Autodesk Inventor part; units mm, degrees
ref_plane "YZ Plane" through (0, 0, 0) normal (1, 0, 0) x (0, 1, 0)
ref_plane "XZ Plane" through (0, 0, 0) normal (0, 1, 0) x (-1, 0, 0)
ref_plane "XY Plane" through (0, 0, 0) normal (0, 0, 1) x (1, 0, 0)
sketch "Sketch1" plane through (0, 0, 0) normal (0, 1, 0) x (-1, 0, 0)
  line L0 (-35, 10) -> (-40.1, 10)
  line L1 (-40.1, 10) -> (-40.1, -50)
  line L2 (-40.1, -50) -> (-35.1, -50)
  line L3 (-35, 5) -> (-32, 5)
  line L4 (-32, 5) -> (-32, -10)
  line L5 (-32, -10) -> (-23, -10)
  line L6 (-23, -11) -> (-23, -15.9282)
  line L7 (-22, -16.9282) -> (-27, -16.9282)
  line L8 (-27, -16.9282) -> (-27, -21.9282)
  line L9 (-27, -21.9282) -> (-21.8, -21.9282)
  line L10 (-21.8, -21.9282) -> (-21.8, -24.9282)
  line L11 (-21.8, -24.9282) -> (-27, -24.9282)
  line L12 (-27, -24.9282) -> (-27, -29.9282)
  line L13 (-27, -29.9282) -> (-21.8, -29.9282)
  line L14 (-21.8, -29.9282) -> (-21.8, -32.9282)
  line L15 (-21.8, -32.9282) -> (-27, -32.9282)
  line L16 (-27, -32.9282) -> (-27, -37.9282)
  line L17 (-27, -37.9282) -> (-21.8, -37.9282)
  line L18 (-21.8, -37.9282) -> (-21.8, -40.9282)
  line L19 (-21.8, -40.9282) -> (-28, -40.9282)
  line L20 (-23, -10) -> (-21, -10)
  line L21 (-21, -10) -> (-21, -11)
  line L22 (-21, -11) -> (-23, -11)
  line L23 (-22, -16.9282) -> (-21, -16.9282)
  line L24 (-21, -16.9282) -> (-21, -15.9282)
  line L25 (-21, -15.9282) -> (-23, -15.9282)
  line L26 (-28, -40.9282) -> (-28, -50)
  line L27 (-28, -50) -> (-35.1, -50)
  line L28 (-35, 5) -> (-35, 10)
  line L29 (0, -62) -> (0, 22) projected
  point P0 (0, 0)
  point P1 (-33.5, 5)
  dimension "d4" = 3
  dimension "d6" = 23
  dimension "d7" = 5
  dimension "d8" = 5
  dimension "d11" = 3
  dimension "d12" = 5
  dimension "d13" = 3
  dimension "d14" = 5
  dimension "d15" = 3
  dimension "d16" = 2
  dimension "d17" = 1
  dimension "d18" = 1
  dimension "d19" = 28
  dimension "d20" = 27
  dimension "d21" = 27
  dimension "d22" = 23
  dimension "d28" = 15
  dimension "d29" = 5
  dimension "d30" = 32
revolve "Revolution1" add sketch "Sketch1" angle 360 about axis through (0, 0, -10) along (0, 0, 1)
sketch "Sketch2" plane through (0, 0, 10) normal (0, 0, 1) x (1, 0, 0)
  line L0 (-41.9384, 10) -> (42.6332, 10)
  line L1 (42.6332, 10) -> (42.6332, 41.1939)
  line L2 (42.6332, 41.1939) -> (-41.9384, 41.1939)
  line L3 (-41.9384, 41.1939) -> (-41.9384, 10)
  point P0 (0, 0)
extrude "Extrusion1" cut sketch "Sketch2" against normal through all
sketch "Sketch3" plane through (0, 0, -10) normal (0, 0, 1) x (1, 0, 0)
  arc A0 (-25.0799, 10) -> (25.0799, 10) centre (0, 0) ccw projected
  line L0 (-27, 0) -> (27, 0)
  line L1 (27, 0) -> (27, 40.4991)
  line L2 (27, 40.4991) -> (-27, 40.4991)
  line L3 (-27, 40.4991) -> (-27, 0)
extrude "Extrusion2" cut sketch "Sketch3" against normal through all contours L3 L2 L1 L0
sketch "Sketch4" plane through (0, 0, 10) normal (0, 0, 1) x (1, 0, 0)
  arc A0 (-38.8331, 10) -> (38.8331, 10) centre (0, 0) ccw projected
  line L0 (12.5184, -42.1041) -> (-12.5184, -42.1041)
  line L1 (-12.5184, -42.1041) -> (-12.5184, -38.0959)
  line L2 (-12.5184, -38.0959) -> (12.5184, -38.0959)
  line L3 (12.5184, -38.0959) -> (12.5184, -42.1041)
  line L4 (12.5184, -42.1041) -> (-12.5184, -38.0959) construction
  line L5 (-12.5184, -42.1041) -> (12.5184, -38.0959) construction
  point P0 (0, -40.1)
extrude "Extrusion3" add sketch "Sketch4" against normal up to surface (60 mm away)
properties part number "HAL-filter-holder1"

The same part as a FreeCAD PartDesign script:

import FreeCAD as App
import Part
import Sketcher
Q = App.Units.Quantity


def add_polygon(sketch, points):
    """Adds a closed chain of lines whose ends are joined by coincident constraints."""
    first, n = sketch.GeometryCount, len(points)
    for a, b in zip(points, points[1:] + points[:1]):
        sketch.addGeometry(Part.LineSegment(App.Vector(*a, 0), App.Vector(*b, 0)), False)
    for i in range(n):
        sketch.addConstraint(Sketcher.Constraint("Coincident", first + i, 2, first + (i + 1) % n, 1))

doc = App.newDocument("Part")
params = doc.addObject("Spreadsheet::Sheet", "Params")
for row, (alias, value) in enumerate([
    ("sketch1_width", "2 mm"),
    ("sketch1_width2", "3 mm"),
    ("sketch1_height", "5 mm"),
    ("sketch1_height2", "1 mm"),
    ("sketch1_height3", "15 mm"),
    ("revolution_angle", "360 deg"),
    ("sketch3_width", "54 mm"),
    ("pad1_length", "60 mm"),
], start=1):
    params.set(f"A{row}", alias)
    params.set(f"B{row}", "=" + value)
    params.setAlias(f"B{row}", alias)

body = doc.addObject("PartDesign::Body", "Body")

sketch1 = doc.addObject("Sketcher::SketchObject", "Sketch")
body.addObject(sketch1)
sketch1.AttachmentSupport = (doc.XZ_Plane, [""])
sketch1.MapMode = "FlatFace"
add_polygon(sketch1, [(35, 5), (35, 10), (40.1, 10), (40.1, -50), (28, -50), (28, -40.9), (21.8, -40.9), (21.8, -37.9), (27, -37.9), (27, -32.9), (21.8, -32.9), (21.8, -29.9), (27, -29.9), (27, -24.9), (21.8, -24.9), (21.8, -21.9), (27, -21.9), (27, -16.9), (21, -16.9), (21, -15.9), (23, -15.9), (23, -11), (21, -11), (21, -10), (32, -10), (32, 5)])
sketch1.addConstraint(Sketcher.Constraint("Vertical", 0))
sketch1.addConstraint(Sketcher.Constraint("Horizontal", 1))
sketch1.addConstraint(Sketcher.Constraint("Vertical", 2))
sketch1.addConstraint(Sketcher.Constraint("Horizontal", 3))
sketch1.addConstraint(Sketcher.Constraint("Vertical", 4))
sketch1.addConstraint(Sketcher.Constraint("Horizontal", 5))
sketch1.addConstraint(Sketcher.Constraint("Vertical", 6))
sketch1.addConstraint(Sketcher.Constraint("Horizontal", 7))
sketch1.addConstraint(Sketcher.Constraint("Vertical", 8))
sketch1.addConstraint(Sketcher.Constraint("Horizontal", 9))
sketch1.addConstraint(Sketcher.Constraint("Vertical", 10))
sketch1.addConstraint(Sketcher.Constraint("Horizontal", 11))
sketch1.addConstraint(Sketcher.Constraint("Vertical", 12))
sketch1.addConstraint(Sketcher.Constraint("Horizontal", 13))
sketch1.addConstraint(Sketcher.Constraint("Vertical", 14))
sketch1.addConstraint(Sketcher.Constraint("Horizontal", 15))
sketch1.addConstraint(Sketcher.Constraint("Vertical", 16))
sketch1.addConstraint(Sketcher.Constraint("Horizontal", 17))
sketch1.addConstraint(Sketcher.Constraint("Vertical", 18))
sketch1.addConstraint(Sketcher.Constraint("Horizontal", 19))
sketch1.addConstraint(Sketcher.Constraint("Vertical", 20))
sketch1.addConstraint(Sketcher.Constraint("Horizontal", 21))
sketch1.addConstraint(Sketcher.Constraint("Vertical", 22))
sketch1.addConstraint(Sketcher.Constraint("Horizontal", 23))
sketch1.addConstraint(Sketcher.Constraint("Vertical", 24))
sketch1.addConstraint(Sketcher.Constraint("Horizontal", 25))
sketch1.addConstraint(Sketcher.Constraint("Vertical", 6, 2, 9, 2))
sketch1.addConstraint(Sketcher.Constraint("Vertical", 8, 2, 11, 2))
sketch1.addConstraint(Sketcher.Constraint("Vertical", 10, 2, 13, 2))
sketch1.addConstraint(Sketcher.Constraint("Vertical", 12, 2, 15, 2))
sketch1.addConstraint(Sketcher.Constraint("Vertical", 18, 2, 21, 2))
sketch1.addConstraint(Sketcher.Constraint("Equal", 25, 6))
sketch1.addConstraint(Sketcher.Constraint("Equal", 0, 8))
sketch1.addConstraint(Sketcher.Constraint("Equal", 6, 10))
sketch1.addConstraint(Sketcher.Constraint("Equal", 8, 12))
sketch1.addConstraint(Sketcher.Constraint("Equal", 10, 14))
sketch1.addConstraint(Sketcher.Constraint("Equal", 12, 16))
sketch1.addConstraint(Sketcher.Constraint("Equal", 18, 22))
sketch1.addConstraint(Sketcher.Constraint("DistanceX", 19, 1, 19, 2, Q("2 mm")))
sketch1.addConstraint(Sketcher.Constraint("DistanceX", 25, 1, 25, 2, Q("3 mm")))
sketch1.addConstraint(Sketcher.Constraint("DistanceY", 0, 1, 0, 2, Q("5 mm")))
sketch1.addConstraint(Sketcher.Constraint("DistanceY", 18, 1, 18, 2, Q("1 mm")))
sketch1.addConstraint(Sketcher.Constraint("DistanceY", 24, 1, 24, 2, Q("15 mm")))
sketch1.addConstraint(Sketcher.Constraint("DistanceX", -1, 1, 3, 2, Q("28 mm")))
sketch1.addConstraint(Sketcher.Constraint("DistanceX", -1, 1, 7, 2, Q("27 mm")))
sketch1.addConstraint(Sketcher.Constraint("DistanceX", -1, 1, 19, 2, Q("23 mm")))
sketch1.addConstraint(Sketcher.Constraint("DistanceX", -1, 1, 23, 2, Q("32 mm")))
sketch1.addConstraint(Sketcher.Constraint("DistanceY", -1, 1, 24, 2, Q("5 mm")))
sketch1.addConstraint(Sketcher.Constraint("DistanceY", 2, 2, 2, 1, Q("60 mm")))
sketch1.addConstraint(Sketcher.Constraint("DistanceX", 1, 1, 1, 2, Q("5.1 mm")))
sketch1.addConstraint(Sketcher.Constraint("DistanceX", 5, 2, 5, 1, Q("6.2 mm")))
sketch1.addConstraint(Sketcher.Constraint("DistanceY", 4, 1, 4, 2, Q("9.0718 mm")))
sketch1.setExpression("Constraints[64]", "Params.sketch1_width")
sketch1.setExpression("Constraints[65]", "Params.sketch1_width2")
sketch1.setExpression("Constraints[66]", "Params.sketch1_height")
sketch1.setExpression("Constraints[67]", "Params.sketch1_height2")
sketch1.setExpression("Constraints[68]", "Params.sketch1_height3")
revolution = doc.addObject("PartDesign::Revolution", "Revolution")
body.addObject(revolution)
revolution.Profile = sketch1
revolution.ReferenceAxis = (sketch1, ["V_Axis"])
revolution.setExpression("Angle", "Params.revolution_angle")

sketch2 = doc.addObject("Sketcher::SketchObject", "Sketch001")
body.addObject(sketch2)
sketch2.AttachmentSupport = (doc.XY_Plane, [""])
sketch2.MapMode = "FlatFace"
sketch2.AttachmentOffset = App.Placement(App.Vector(0, 0, 10), App.Rotation())
add_polygon(sketch2, [(-42, 41), (-42, 10), (43, 10), (43, 41)])
sketch2.addConstraint(Sketcher.Constraint("Vertical", 0))
sketch2.addConstraint(Sketcher.Constraint("Horizontal", 1))
sketch2.addConstraint(Sketcher.Constraint("Vertical", 2))
sketch2.addConstraint(Sketcher.Constraint("Horizontal", 3))
sketch2.addConstraint(Sketcher.Constraint("DistanceY", -1, 1, 0, 2, Q("10 mm")))
sketch2.addConstraint(Sketcher.Constraint("DistanceY", 0, 2, 0, 1, Q("31.194 mm")))
sketch2.addConstraint(Sketcher.Constraint("DistanceX", 1, 1, 1, 2, Q("84.5716 mm")))
sketch2.addConstraint(Sketcher.Constraint("DistanceX", 0, 2, -1, 1, Q("41.9384 mm")))
pocket1 = doc.addObject("PartDesign::Pocket", "Pocket")
body.addObject(pocket1)
pocket1.Profile = sketch2
pocket1.Type = "ThroughAll"

sketch3 = doc.addObject("Sketcher::SketchObject", "Sketch002")
body.addObject(sketch3)
sketch3.AttachmentSupport = (doc.XY_Plane, [""])
sketch3.MapMode = "FlatFace"
sketch3.AttachmentOffset = App.Placement(App.Vector(0, 0, -10), App.Rotation())
add_polygon(sketch3, [(-27, 40), (-27, 0), (27, 0), (27, 40)])
sketch3.addConstraint(Sketcher.Constraint("Vertical", 0))
sketch3.addConstraint(Sketcher.Constraint("Horizontal", 1))
sketch3.addConstraint(Sketcher.Constraint("Vertical", 2))
sketch3.addConstraint(Sketcher.Constraint("Horizontal", 3))
sketch3.addConstraint(Sketcher.Constraint("Symmetric", 0, 2, 1, 2, -1, 1))
sketch3.addConstraint(Sketcher.Constraint("DistanceX", 1, 1, 1, 2, Q("54 mm")))
sketch3.addConstraint(Sketcher.Constraint("DistanceY", 0, 2, 0, 1, Q("40.499 mm")))
sketch3.setExpression("Constraints[9]", "Params.sketch3_width")
pocket2 = doc.addObject("PartDesign::Pocket", "Pocket001")
body.addObject(pocket2)
pocket2.Profile = sketch3
pocket2.Type = "ThroughAll"

sketch4 = doc.addObject("Sketcher::SketchObject", "Sketch003")
body.addObject(sketch4)
sketch4.AttachmentSupport = (doc.XY_Plane, [""])
sketch4.MapMode = "FlatFace"
sketch4.AttachmentOffset = App.Placement(App.Vector(0, 0, 10), App.Rotation())
add_polygon(sketch4, [(12.5, -38.1), (-12.5, -38.1), (-12.5, -42.1), (12.5, -42.1)])
sketch4.addConstraint(Sketcher.Constraint("Horizontal", 0))
sketch4.addConstraint(Sketcher.Constraint("Vertical", 1))
sketch4.addConstraint(Sketcher.Constraint("Horizontal", 2))
sketch4.addConstraint(Sketcher.Constraint("Vertical", 3))
sketch4.addConstraint(Sketcher.Constraint("DistanceX", 0, 2, 0, 1, Q("25.0368 mm")))
sketch4.addConstraint(Sketcher.Constraint("DistanceY", 1, 2, 1, 1, Q("4.0082 mm")))
sketch4.addConstraint(Sketcher.Constraint("DistanceY", 0, 2, -1, 1, Q("38.096 mm")))
sketch4.addConstraint(Sketcher.Constraint("DistanceX", 0, 2, -1, 1, Q("12.5184 mm")))
pad1 = doc.addObject("PartDesign::Pad", "Pad")
body.addObject(pad1)
pad1.Profile = sketch4
pad1.setExpression("Length", "Params.pad1_length")
pad1.Reversed = True

doc.recompute()
